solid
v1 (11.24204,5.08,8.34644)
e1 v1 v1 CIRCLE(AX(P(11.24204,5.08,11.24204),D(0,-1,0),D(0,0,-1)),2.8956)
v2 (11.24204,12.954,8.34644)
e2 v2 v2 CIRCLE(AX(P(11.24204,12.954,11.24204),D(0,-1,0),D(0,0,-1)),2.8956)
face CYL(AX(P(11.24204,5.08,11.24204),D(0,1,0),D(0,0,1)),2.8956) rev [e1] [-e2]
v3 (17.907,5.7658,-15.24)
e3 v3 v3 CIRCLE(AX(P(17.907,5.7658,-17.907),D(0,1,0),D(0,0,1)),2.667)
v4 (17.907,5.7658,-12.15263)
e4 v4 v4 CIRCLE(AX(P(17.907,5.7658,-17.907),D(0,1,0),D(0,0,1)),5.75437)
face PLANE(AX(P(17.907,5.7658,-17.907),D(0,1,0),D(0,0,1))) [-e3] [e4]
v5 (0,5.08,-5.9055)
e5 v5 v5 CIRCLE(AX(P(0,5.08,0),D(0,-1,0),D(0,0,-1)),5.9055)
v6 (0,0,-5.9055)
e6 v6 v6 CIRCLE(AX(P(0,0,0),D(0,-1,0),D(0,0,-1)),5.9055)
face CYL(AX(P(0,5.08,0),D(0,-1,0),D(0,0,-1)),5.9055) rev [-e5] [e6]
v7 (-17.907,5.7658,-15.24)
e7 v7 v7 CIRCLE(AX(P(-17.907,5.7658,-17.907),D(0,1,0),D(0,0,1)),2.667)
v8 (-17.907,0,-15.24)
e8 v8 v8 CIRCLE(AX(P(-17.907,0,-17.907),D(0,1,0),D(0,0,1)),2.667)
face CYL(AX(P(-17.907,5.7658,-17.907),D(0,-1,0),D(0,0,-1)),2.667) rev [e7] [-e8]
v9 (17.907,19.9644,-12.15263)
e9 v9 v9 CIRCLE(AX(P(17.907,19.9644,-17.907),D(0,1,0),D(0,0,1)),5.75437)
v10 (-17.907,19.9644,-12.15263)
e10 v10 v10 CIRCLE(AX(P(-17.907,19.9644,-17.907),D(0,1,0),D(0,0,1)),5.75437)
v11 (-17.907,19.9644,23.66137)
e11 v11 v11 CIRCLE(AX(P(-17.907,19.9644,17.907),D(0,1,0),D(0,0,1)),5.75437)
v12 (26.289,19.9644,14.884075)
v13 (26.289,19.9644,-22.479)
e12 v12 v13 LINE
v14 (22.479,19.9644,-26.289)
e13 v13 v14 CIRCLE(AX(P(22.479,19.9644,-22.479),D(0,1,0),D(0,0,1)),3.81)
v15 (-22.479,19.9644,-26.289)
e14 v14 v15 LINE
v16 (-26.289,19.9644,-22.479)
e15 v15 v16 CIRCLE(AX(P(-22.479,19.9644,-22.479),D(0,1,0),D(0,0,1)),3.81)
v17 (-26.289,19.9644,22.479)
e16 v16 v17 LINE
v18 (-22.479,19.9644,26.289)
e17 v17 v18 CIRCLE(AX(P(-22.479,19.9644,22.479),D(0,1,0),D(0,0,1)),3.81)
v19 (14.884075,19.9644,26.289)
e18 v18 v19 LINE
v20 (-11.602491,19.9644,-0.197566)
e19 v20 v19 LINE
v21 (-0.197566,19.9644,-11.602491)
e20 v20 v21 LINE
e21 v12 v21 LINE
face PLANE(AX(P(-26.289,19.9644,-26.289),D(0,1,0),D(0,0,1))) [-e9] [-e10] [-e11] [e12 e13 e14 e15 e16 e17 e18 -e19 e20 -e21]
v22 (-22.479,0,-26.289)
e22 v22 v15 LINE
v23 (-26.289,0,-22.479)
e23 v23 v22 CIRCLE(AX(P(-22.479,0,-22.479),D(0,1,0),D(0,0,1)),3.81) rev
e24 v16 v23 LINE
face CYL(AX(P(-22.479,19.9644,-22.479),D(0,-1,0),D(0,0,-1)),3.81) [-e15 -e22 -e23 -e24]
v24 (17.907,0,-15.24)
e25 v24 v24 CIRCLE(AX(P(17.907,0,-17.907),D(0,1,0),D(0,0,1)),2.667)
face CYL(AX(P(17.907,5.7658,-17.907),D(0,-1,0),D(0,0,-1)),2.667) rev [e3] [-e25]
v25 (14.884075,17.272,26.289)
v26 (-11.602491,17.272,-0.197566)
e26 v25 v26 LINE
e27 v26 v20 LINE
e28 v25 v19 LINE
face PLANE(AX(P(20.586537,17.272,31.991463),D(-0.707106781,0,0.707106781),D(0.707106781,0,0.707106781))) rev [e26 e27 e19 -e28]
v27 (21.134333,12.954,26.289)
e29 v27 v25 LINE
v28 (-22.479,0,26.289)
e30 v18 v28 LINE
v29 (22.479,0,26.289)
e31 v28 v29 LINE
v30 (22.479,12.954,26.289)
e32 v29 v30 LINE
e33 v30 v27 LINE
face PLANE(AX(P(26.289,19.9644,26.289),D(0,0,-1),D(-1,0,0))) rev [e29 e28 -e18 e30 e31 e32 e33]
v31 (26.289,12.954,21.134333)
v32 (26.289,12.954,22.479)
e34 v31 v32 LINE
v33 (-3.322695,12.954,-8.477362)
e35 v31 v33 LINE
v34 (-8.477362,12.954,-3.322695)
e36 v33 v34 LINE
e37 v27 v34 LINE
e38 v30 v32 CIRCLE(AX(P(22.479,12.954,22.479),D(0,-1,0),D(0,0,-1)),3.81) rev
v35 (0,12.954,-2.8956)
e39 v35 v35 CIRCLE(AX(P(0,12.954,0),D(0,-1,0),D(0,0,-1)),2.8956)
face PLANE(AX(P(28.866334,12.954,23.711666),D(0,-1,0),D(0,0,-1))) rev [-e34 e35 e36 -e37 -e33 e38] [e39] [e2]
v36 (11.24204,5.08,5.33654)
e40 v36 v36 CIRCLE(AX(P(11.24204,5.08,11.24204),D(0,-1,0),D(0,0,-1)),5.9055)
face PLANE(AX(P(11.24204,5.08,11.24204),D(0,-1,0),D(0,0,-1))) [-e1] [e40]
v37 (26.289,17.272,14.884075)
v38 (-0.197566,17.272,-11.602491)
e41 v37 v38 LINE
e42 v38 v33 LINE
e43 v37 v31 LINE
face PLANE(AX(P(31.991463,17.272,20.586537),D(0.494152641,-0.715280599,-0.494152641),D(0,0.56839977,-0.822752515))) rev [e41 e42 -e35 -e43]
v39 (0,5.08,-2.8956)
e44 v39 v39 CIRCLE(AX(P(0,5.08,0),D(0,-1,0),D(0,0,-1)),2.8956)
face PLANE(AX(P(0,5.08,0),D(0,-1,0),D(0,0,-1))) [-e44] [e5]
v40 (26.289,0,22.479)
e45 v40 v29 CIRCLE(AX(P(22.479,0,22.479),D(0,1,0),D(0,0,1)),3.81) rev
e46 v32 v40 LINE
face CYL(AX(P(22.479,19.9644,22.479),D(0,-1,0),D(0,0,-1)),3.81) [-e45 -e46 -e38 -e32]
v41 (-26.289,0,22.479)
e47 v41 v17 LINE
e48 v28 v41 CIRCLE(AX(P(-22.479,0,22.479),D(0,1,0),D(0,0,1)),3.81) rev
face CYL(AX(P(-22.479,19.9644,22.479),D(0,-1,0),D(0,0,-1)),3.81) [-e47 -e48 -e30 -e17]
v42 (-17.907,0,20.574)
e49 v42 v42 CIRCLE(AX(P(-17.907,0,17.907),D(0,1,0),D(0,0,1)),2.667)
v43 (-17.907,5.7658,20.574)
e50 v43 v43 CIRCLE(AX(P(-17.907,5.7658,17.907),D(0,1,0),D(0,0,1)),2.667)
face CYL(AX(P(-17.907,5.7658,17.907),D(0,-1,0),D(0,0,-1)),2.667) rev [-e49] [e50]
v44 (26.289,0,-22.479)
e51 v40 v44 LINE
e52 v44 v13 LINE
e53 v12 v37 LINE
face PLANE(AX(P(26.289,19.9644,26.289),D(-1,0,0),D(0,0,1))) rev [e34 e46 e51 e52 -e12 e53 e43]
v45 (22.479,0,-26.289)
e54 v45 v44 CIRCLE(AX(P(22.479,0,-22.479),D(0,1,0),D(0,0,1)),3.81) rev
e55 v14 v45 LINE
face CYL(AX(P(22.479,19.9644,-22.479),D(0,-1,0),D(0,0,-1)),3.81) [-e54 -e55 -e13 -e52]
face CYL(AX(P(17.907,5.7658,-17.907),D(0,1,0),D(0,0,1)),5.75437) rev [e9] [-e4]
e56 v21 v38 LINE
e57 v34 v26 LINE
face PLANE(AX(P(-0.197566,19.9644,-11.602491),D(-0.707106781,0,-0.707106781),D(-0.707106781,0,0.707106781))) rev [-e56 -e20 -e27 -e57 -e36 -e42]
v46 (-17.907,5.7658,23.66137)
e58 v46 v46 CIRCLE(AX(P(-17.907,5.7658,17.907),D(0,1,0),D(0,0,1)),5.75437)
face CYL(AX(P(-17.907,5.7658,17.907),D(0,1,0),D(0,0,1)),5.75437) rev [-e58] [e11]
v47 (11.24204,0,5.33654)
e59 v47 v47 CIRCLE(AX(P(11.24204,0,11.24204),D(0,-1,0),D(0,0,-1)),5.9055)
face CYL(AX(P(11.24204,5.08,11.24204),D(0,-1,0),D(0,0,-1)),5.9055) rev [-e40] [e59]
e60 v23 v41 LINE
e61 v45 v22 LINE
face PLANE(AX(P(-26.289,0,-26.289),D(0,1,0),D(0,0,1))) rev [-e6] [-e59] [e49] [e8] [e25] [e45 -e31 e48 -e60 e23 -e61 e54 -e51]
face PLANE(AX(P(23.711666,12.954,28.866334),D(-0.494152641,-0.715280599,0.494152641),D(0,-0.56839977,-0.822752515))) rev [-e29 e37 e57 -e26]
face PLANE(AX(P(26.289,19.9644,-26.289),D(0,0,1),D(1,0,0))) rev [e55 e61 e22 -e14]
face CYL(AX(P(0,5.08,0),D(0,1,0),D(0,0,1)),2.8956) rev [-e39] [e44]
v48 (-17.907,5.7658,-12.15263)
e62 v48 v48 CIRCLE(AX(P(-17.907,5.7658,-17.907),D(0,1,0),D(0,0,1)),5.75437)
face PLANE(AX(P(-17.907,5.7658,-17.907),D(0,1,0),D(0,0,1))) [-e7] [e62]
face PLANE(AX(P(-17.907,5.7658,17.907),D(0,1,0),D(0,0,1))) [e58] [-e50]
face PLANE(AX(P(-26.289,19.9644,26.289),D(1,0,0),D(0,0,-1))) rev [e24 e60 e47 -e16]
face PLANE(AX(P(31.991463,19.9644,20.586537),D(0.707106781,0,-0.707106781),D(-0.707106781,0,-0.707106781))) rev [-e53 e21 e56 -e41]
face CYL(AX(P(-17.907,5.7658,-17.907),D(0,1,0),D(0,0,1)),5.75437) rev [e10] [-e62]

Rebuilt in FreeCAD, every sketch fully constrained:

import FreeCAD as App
import Part
import Sketcher
from FreeCAD import Vector
Q = App.Units.Quantity


def edges_at(feature, points):
    """Names of the edges that pass closest to the given points."""
    edges = feature.Shape.Edges
    near = lambda p: min(range(len(edges)), key=lambda i: edges[i].distToShape(Part.Vertex(*p))[0])
    return sorted({f"Edge{near(p) + 1}" for p in points})


def add_polygon(sketch, points):
    """Adds a closed chain of lines whose ends are joined by coincident constraints."""
    first, n = sketch.GeometryCount, len(points)
    for a, b in zip(points, points[1:] + points[:1]):
        sketch.addGeometry(Part.LineSegment(App.Vector(*a, 0), App.Vector(*b, 0)), False)
    for i in range(n):
        sketch.addConstraint(Sketcher.Constraint("Coincident", first + i, 2, first + (i + 1) % n, 1))

doc = App.newDocument("Part")
body = doc.addObject("PartDesign::Body", "Body")

# Sketch on XZ plane
sketch1 = doc.addObject("Sketcher::SketchObject", "Sketch")
body.addObject(sketch1)
sketch1.AttachmentSupport = (doc.XZ_Plane, [""])
sketch1.MapMode = "FlatFace"
add_polygon(sketch1, [(-26.289, -26.289), (-26.289, 26.289), (26.289, 26.289), (26.289, -26.289)])  # lines 0-3
sketch1.addConstraint(Sketcher.Constraint("Vertical", 0))
sketch1.addConstraint(Sketcher.Constraint("Horizontal", 1))
sketch1.addConstraint(Sketcher.Constraint("Vertical", 2))
sketch1.addConstraint(Sketcher.Constraint("Horizontal", 3))
sketch1.addConstraint(Sketcher.Constraint("Symmetric", 0, 2, 2, 2, -1, 1))
sketch1.addConstraint(Sketcher.Constraint("Equal", 3, 0))
sketch1.addConstraint(Sketcher.Constraint("DistanceX", 1, 1, 1, 2, Q("2.07 in")))
pad1 = doc.addObject("PartDesign::Pad", "Pad")
body.addObject(pad1)
pad1.Profile = sketch1
pad1.Length = Q("0.786 in")
pad1.Reversed = True

# Sketch on XZ plane
sketch2 = doc.addObject("Sketcher::SketchObject", "Sketch001")
body.addObject(sketch2)
sketch2.AttachmentSupport = (doc.XZ_Plane, [""])
sketch2.MapMode = "FlatFace"
sketch2.addGeometry(Part.Circle(Vector(-17.907, -17.907, 0), Vector(0, 0, 1), 2.667), False)
sketch2.addGeometry(Part.Circle(Vector(-17.907, 17.907, 0), Vector(0, 0, 1), 2.667), False)
sketch2.addGeometry(Part.Circle(Vector(17.907, -17.907, 0), Vector(0, 0, 1), 2.667), False)
sketch2.addConstraint(Sketcher.Constraint("Equal", 0, 1))
sketch2.addConstraint(Sketcher.Constraint("Equal", 1, 2))
sketch2.addConstraint(Sketcher.Constraint("Symmetric", 1, 3, 2, 3, -1, 1))
sketch2.addConstraint(Sketcher.Constraint("Symmetric", 0, 3, 2, 3, -2))
sketch2.addConstraint(Sketcher.Constraint("Diameter", 0, Q("0.21 in")))
sketch2.addConstraint(Sketcher.Constraint("DistanceY", 0, 3, 1, 3, Q("1.41 in")))
sketch2.addConstraint(Sketcher.Constraint("DistanceX", 0, 3, 2, 3, Q("1.41 in")))
pocket1 = doc.addObject("PartDesign::Pocket", "Pocket")
body.addObject(pocket1)
pocket1.Profile = sketch2
pocket1.Length = Q("0.227 in")

# Sketch on XZ plane
sketch3 = doc.addObject("Sketcher::SketchObject", "Sketch002")
body.addObject(sketch3)
sketch3.AttachmentSupport = (doc.XZ_Plane, [""])
sketch3.MapMode = "FlatFace"
sketch3.AttachmentOffset = App.Placement(Vector(0, 0, -0.786 * 25.4), App.Rotation())
sketch3.addGeometry(Part.Circle(Vector(-17.907, -17.907, 0), Vector(0, 0, 1), 5.75437), False)
sketch3.addGeometry(Part.Circle(Vector(-17.907, 17.907, 0), Vector(0, 0, 1), 5.75437), False)
sketch3.addGeometry(Part.Circle(Vector(17.907, -17.907, 0), Vector(0, 0, 1), 5.75437), False)
sketch3.addConstraint(Sketcher.Constraint("Equal", 0, 1))
sketch3.addConstraint(Sketcher.Constraint("Equal", 1, 2))
sketch3.addConstraint(Sketcher.Constraint("Symmetric", 1, 3, 2, 3, -1, 1))
sketch3.addConstraint(Sketcher.Constraint("Symmetric", 0, 3, 2, 3, -2))
sketch3.addConstraint(Sketcher.Constraint("Diameter", 0, Q("0.4531 in")))
sketch3.addConstraint(Sketcher.Constraint("DistanceY", 0, 3, 1, 3, Q("1.41 in")))
sketch3.addConstraint(Sketcher.Constraint("DistanceX", 0, 3, 2, 3, Q("1.41 in")))
pocket2 = doc.addObject("PartDesign::Pocket", "Pocket001")
body.addObject(pocket2)
pocket2.Profile = sketch3
pocket2.Length = Q("0.559 in")
pocket2.Reversed = True

# Sketch on an angled plane
sketch4 = doc.addObject("Sketcher::SketchObject", "Sketch003")
body.addObject(sketch4)
sketch4.Placement = App.Placement(Vector(26.289, 0, 26.289), App.Rotation(Vector(-0.707106781, 0, 0.707106781), Vector(0, 0.999999999, 0), Vector(-0.707106781, 0, -0.707106781), "ZXY"))
add_polygon(sketch4, [(-8.0645, 19.9644), (-8.0645, 17.272), (-3.6449, 12.954), (3.6449, 12.954), (8.0645, 17.272), (8.0645, 19.9644)])  # lines 0-5
sketch4.addConstraint(Sketcher.Constraint("Vertical", 0))
sketch4.addConstraint(Sketcher.Constraint("Horizontal", 2))
sketch4.addConstraint(Sketcher.Constraint("Vertical", 4))
sketch4.addConstraint(Sketcher.Constraint("Horizontal", 5))
sketch4.addConstraint(Sketcher.Constraint("Symmetric", 0, 2, 3, 2, -2))
sketch4.addConstraint(Sketcher.Constraint("Equal", 1, 3))
sketch4.addConstraint(Sketcher.Constraint("DistanceX", 2, 1, 2, 2, Q("0.287 in")))
sketch4.addConstraint(Sketcher.Constraint("DistanceX", 5, 2, 5, 1, Q("0.635 in")))
sketch4.addConstraint(Sketcher.Constraint("DistanceY", 0, 2, 0, 1, Q("0.106 in")))
sketch4.addConstraint(Sketcher.Constraint("DistanceY", -1, 1, 0, 2, Q("0.68 in")))
sketch4.addConstraint(Sketcher.Constraint("DistanceY", -1, 1, 1, 2, Q("0.51 in")))
pocket3 = doc.addObject("PartDesign::Pocket", "Pocket002")
body.addObject(pocket3)
pocket3.Profile = sketch4
pocket3.Length = 45.52216
pocket3.Reversed = True

# Sketch on XZ plane
sketch5 = doc.addObject("Sketcher::SketchObject", "Sketch004")
body.addObject(sketch5)
sketch5.AttachmentSupport = (doc.XZ_Plane, [""])
sketch5.MapMode = "FlatFace"
sketch5.AttachmentOffset = App.Placement(Vector(0, 0, -0.51 * 25.4), App.Rotation())
sketch5.addGeometry(Part.Circle(Vector(0, 0, 0), Vector(0, 0, 1), 2.8956), False)
sketch5.addGeometry(Part.Circle(Vector(11.24204, 11.24204, 0), Vector(0, 0, 1), 2.8956), False)
sketch5.addConstraint(Sketcher.Constraint("Coincident", 0, 3, -1, 1))
sketch5.addConstraint(Sketcher.Constraint("Equal", 0, 1))
sketch5.addConstraint(Sketcher.Constraint("Diameter", 0, Q("0.228 in")))
sketch5.addConstraint(Sketcher.Constraint("DistanceX", -1, 1, 1, 3, Q("0.4426 in")))
sketch5.addConstraint(Sketcher.Constraint("DistanceY", -1, 1, 1, 3, Q("0.4426 in")))
pocket4 = doc.addObject("PartDesign::Pocket", "Pocket003")
body.addObject(pocket4)
pocket4.Profile = sketch5
pocket4.Length = Q("0.31 in")
pocket4.Reversed = True

# Sketch on XZ plane
sketch6 = doc.addObject("Sketcher::SketchObject", "Sketch005")
body.addObject(sketch6)
sketch6.AttachmentSupport = (doc.XZ_Plane, [""])
sketch6.MapMode = "FlatFace"
sketch6.addGeometry(Part.Circle(Vector(0, 0, 0), Vector(0, 0, 1), 5.9055), False)
sketch6.addGeometry(Part.Circle(Vector(11.24204, 11.24204, 0), Vector(0, 0, 1), 5.9055), False)
sketch6.addConstraint(Sketcher.Constraint("Coincident", 0, 3, -1, 1))
sketch6.addConstraint(Sketcher.Constraint("Equal", 0, 1))
sketch6.addConstraint(Sketcher.Constraint("Diameter", 0, Q("0.465 in")))
sketch6.addConstraint(Sketcher.Constraint("DistanceX", -1, 1, 1, 3, Q("0.4426 in")))
sketch6.addConstraint(Sketcher.Constraint("DistanceY", -1, 1, 1, 3, Q("0.4426 in")))
pocket5 = doc.addObject("PartDesign::Pocket", "Pocket004")
body.addObject(pocket5)
pocket5.Profile = sketch6
pocket5.Length = Q("0.2 in")
doc.recompute()

fillet = doc.addObject("PartDesign::Fillet", "Fillet")
body.addObject(fillet)
fillet.Base = (pocket5, edges_at(pocket5, [
    (26.289, 6.477, 26.289),
    (-26.289, 9.982, -26.289),
    (26.289, 9.982, -26.289),
    (-26.289, 9.982, 26.289),
]))
fillet.Radius = Q("0.15 in")

# Sketch on XZ plane
sketch7 = doc.addObject("Sketcher::SketchObject", "Sketch006")
body.addObject(sketch7)
sketch7.AttachmentSupport = (doc.XZ_Plane, [""])
sketch7.MapMode = "FlatFace"
sketch7.AttachmentOffset = App.Placement(Vector(0, 0, -0.786 * 25.4), App.Rotation())
sketch7.addGeometry(Part.Circle(Vector(0, 0, 0), Vector(0, 0, 1), 5.08), False)
sketch7.addGeometry(Part.Circle(Vector(15.9004, 15.9004, 0), Vector(0, 0, 1), 5.08), False)
sketch7.addConstraint(Sketcher.Constraint("Coincident", 0, 3, -1, 1))
sketch7.addConstraint(Sketcher.Constraint("Equal", 0, 1))
sketch7.addConstraint(Sketcher.Constraint("Diameter", 0, Q("0.4 in")))
sketch7.addConstraint(Sketcher.Constraint("DistanceX", -1, 1, 1, 3, Q("0.626 in")))
sketch7.addConstraint(Sketcher.Constraint("DistanceY", -1, 1, 1, 3, Q("0.626 in")))
pocket6 = doc.addObject("PartDesign::Pocket", "Pocket005")
body.addObject(pocket6)
pocket6.Profile = sketch7
pocket6.Length = Q("0.2 in")

doc.recompute()
